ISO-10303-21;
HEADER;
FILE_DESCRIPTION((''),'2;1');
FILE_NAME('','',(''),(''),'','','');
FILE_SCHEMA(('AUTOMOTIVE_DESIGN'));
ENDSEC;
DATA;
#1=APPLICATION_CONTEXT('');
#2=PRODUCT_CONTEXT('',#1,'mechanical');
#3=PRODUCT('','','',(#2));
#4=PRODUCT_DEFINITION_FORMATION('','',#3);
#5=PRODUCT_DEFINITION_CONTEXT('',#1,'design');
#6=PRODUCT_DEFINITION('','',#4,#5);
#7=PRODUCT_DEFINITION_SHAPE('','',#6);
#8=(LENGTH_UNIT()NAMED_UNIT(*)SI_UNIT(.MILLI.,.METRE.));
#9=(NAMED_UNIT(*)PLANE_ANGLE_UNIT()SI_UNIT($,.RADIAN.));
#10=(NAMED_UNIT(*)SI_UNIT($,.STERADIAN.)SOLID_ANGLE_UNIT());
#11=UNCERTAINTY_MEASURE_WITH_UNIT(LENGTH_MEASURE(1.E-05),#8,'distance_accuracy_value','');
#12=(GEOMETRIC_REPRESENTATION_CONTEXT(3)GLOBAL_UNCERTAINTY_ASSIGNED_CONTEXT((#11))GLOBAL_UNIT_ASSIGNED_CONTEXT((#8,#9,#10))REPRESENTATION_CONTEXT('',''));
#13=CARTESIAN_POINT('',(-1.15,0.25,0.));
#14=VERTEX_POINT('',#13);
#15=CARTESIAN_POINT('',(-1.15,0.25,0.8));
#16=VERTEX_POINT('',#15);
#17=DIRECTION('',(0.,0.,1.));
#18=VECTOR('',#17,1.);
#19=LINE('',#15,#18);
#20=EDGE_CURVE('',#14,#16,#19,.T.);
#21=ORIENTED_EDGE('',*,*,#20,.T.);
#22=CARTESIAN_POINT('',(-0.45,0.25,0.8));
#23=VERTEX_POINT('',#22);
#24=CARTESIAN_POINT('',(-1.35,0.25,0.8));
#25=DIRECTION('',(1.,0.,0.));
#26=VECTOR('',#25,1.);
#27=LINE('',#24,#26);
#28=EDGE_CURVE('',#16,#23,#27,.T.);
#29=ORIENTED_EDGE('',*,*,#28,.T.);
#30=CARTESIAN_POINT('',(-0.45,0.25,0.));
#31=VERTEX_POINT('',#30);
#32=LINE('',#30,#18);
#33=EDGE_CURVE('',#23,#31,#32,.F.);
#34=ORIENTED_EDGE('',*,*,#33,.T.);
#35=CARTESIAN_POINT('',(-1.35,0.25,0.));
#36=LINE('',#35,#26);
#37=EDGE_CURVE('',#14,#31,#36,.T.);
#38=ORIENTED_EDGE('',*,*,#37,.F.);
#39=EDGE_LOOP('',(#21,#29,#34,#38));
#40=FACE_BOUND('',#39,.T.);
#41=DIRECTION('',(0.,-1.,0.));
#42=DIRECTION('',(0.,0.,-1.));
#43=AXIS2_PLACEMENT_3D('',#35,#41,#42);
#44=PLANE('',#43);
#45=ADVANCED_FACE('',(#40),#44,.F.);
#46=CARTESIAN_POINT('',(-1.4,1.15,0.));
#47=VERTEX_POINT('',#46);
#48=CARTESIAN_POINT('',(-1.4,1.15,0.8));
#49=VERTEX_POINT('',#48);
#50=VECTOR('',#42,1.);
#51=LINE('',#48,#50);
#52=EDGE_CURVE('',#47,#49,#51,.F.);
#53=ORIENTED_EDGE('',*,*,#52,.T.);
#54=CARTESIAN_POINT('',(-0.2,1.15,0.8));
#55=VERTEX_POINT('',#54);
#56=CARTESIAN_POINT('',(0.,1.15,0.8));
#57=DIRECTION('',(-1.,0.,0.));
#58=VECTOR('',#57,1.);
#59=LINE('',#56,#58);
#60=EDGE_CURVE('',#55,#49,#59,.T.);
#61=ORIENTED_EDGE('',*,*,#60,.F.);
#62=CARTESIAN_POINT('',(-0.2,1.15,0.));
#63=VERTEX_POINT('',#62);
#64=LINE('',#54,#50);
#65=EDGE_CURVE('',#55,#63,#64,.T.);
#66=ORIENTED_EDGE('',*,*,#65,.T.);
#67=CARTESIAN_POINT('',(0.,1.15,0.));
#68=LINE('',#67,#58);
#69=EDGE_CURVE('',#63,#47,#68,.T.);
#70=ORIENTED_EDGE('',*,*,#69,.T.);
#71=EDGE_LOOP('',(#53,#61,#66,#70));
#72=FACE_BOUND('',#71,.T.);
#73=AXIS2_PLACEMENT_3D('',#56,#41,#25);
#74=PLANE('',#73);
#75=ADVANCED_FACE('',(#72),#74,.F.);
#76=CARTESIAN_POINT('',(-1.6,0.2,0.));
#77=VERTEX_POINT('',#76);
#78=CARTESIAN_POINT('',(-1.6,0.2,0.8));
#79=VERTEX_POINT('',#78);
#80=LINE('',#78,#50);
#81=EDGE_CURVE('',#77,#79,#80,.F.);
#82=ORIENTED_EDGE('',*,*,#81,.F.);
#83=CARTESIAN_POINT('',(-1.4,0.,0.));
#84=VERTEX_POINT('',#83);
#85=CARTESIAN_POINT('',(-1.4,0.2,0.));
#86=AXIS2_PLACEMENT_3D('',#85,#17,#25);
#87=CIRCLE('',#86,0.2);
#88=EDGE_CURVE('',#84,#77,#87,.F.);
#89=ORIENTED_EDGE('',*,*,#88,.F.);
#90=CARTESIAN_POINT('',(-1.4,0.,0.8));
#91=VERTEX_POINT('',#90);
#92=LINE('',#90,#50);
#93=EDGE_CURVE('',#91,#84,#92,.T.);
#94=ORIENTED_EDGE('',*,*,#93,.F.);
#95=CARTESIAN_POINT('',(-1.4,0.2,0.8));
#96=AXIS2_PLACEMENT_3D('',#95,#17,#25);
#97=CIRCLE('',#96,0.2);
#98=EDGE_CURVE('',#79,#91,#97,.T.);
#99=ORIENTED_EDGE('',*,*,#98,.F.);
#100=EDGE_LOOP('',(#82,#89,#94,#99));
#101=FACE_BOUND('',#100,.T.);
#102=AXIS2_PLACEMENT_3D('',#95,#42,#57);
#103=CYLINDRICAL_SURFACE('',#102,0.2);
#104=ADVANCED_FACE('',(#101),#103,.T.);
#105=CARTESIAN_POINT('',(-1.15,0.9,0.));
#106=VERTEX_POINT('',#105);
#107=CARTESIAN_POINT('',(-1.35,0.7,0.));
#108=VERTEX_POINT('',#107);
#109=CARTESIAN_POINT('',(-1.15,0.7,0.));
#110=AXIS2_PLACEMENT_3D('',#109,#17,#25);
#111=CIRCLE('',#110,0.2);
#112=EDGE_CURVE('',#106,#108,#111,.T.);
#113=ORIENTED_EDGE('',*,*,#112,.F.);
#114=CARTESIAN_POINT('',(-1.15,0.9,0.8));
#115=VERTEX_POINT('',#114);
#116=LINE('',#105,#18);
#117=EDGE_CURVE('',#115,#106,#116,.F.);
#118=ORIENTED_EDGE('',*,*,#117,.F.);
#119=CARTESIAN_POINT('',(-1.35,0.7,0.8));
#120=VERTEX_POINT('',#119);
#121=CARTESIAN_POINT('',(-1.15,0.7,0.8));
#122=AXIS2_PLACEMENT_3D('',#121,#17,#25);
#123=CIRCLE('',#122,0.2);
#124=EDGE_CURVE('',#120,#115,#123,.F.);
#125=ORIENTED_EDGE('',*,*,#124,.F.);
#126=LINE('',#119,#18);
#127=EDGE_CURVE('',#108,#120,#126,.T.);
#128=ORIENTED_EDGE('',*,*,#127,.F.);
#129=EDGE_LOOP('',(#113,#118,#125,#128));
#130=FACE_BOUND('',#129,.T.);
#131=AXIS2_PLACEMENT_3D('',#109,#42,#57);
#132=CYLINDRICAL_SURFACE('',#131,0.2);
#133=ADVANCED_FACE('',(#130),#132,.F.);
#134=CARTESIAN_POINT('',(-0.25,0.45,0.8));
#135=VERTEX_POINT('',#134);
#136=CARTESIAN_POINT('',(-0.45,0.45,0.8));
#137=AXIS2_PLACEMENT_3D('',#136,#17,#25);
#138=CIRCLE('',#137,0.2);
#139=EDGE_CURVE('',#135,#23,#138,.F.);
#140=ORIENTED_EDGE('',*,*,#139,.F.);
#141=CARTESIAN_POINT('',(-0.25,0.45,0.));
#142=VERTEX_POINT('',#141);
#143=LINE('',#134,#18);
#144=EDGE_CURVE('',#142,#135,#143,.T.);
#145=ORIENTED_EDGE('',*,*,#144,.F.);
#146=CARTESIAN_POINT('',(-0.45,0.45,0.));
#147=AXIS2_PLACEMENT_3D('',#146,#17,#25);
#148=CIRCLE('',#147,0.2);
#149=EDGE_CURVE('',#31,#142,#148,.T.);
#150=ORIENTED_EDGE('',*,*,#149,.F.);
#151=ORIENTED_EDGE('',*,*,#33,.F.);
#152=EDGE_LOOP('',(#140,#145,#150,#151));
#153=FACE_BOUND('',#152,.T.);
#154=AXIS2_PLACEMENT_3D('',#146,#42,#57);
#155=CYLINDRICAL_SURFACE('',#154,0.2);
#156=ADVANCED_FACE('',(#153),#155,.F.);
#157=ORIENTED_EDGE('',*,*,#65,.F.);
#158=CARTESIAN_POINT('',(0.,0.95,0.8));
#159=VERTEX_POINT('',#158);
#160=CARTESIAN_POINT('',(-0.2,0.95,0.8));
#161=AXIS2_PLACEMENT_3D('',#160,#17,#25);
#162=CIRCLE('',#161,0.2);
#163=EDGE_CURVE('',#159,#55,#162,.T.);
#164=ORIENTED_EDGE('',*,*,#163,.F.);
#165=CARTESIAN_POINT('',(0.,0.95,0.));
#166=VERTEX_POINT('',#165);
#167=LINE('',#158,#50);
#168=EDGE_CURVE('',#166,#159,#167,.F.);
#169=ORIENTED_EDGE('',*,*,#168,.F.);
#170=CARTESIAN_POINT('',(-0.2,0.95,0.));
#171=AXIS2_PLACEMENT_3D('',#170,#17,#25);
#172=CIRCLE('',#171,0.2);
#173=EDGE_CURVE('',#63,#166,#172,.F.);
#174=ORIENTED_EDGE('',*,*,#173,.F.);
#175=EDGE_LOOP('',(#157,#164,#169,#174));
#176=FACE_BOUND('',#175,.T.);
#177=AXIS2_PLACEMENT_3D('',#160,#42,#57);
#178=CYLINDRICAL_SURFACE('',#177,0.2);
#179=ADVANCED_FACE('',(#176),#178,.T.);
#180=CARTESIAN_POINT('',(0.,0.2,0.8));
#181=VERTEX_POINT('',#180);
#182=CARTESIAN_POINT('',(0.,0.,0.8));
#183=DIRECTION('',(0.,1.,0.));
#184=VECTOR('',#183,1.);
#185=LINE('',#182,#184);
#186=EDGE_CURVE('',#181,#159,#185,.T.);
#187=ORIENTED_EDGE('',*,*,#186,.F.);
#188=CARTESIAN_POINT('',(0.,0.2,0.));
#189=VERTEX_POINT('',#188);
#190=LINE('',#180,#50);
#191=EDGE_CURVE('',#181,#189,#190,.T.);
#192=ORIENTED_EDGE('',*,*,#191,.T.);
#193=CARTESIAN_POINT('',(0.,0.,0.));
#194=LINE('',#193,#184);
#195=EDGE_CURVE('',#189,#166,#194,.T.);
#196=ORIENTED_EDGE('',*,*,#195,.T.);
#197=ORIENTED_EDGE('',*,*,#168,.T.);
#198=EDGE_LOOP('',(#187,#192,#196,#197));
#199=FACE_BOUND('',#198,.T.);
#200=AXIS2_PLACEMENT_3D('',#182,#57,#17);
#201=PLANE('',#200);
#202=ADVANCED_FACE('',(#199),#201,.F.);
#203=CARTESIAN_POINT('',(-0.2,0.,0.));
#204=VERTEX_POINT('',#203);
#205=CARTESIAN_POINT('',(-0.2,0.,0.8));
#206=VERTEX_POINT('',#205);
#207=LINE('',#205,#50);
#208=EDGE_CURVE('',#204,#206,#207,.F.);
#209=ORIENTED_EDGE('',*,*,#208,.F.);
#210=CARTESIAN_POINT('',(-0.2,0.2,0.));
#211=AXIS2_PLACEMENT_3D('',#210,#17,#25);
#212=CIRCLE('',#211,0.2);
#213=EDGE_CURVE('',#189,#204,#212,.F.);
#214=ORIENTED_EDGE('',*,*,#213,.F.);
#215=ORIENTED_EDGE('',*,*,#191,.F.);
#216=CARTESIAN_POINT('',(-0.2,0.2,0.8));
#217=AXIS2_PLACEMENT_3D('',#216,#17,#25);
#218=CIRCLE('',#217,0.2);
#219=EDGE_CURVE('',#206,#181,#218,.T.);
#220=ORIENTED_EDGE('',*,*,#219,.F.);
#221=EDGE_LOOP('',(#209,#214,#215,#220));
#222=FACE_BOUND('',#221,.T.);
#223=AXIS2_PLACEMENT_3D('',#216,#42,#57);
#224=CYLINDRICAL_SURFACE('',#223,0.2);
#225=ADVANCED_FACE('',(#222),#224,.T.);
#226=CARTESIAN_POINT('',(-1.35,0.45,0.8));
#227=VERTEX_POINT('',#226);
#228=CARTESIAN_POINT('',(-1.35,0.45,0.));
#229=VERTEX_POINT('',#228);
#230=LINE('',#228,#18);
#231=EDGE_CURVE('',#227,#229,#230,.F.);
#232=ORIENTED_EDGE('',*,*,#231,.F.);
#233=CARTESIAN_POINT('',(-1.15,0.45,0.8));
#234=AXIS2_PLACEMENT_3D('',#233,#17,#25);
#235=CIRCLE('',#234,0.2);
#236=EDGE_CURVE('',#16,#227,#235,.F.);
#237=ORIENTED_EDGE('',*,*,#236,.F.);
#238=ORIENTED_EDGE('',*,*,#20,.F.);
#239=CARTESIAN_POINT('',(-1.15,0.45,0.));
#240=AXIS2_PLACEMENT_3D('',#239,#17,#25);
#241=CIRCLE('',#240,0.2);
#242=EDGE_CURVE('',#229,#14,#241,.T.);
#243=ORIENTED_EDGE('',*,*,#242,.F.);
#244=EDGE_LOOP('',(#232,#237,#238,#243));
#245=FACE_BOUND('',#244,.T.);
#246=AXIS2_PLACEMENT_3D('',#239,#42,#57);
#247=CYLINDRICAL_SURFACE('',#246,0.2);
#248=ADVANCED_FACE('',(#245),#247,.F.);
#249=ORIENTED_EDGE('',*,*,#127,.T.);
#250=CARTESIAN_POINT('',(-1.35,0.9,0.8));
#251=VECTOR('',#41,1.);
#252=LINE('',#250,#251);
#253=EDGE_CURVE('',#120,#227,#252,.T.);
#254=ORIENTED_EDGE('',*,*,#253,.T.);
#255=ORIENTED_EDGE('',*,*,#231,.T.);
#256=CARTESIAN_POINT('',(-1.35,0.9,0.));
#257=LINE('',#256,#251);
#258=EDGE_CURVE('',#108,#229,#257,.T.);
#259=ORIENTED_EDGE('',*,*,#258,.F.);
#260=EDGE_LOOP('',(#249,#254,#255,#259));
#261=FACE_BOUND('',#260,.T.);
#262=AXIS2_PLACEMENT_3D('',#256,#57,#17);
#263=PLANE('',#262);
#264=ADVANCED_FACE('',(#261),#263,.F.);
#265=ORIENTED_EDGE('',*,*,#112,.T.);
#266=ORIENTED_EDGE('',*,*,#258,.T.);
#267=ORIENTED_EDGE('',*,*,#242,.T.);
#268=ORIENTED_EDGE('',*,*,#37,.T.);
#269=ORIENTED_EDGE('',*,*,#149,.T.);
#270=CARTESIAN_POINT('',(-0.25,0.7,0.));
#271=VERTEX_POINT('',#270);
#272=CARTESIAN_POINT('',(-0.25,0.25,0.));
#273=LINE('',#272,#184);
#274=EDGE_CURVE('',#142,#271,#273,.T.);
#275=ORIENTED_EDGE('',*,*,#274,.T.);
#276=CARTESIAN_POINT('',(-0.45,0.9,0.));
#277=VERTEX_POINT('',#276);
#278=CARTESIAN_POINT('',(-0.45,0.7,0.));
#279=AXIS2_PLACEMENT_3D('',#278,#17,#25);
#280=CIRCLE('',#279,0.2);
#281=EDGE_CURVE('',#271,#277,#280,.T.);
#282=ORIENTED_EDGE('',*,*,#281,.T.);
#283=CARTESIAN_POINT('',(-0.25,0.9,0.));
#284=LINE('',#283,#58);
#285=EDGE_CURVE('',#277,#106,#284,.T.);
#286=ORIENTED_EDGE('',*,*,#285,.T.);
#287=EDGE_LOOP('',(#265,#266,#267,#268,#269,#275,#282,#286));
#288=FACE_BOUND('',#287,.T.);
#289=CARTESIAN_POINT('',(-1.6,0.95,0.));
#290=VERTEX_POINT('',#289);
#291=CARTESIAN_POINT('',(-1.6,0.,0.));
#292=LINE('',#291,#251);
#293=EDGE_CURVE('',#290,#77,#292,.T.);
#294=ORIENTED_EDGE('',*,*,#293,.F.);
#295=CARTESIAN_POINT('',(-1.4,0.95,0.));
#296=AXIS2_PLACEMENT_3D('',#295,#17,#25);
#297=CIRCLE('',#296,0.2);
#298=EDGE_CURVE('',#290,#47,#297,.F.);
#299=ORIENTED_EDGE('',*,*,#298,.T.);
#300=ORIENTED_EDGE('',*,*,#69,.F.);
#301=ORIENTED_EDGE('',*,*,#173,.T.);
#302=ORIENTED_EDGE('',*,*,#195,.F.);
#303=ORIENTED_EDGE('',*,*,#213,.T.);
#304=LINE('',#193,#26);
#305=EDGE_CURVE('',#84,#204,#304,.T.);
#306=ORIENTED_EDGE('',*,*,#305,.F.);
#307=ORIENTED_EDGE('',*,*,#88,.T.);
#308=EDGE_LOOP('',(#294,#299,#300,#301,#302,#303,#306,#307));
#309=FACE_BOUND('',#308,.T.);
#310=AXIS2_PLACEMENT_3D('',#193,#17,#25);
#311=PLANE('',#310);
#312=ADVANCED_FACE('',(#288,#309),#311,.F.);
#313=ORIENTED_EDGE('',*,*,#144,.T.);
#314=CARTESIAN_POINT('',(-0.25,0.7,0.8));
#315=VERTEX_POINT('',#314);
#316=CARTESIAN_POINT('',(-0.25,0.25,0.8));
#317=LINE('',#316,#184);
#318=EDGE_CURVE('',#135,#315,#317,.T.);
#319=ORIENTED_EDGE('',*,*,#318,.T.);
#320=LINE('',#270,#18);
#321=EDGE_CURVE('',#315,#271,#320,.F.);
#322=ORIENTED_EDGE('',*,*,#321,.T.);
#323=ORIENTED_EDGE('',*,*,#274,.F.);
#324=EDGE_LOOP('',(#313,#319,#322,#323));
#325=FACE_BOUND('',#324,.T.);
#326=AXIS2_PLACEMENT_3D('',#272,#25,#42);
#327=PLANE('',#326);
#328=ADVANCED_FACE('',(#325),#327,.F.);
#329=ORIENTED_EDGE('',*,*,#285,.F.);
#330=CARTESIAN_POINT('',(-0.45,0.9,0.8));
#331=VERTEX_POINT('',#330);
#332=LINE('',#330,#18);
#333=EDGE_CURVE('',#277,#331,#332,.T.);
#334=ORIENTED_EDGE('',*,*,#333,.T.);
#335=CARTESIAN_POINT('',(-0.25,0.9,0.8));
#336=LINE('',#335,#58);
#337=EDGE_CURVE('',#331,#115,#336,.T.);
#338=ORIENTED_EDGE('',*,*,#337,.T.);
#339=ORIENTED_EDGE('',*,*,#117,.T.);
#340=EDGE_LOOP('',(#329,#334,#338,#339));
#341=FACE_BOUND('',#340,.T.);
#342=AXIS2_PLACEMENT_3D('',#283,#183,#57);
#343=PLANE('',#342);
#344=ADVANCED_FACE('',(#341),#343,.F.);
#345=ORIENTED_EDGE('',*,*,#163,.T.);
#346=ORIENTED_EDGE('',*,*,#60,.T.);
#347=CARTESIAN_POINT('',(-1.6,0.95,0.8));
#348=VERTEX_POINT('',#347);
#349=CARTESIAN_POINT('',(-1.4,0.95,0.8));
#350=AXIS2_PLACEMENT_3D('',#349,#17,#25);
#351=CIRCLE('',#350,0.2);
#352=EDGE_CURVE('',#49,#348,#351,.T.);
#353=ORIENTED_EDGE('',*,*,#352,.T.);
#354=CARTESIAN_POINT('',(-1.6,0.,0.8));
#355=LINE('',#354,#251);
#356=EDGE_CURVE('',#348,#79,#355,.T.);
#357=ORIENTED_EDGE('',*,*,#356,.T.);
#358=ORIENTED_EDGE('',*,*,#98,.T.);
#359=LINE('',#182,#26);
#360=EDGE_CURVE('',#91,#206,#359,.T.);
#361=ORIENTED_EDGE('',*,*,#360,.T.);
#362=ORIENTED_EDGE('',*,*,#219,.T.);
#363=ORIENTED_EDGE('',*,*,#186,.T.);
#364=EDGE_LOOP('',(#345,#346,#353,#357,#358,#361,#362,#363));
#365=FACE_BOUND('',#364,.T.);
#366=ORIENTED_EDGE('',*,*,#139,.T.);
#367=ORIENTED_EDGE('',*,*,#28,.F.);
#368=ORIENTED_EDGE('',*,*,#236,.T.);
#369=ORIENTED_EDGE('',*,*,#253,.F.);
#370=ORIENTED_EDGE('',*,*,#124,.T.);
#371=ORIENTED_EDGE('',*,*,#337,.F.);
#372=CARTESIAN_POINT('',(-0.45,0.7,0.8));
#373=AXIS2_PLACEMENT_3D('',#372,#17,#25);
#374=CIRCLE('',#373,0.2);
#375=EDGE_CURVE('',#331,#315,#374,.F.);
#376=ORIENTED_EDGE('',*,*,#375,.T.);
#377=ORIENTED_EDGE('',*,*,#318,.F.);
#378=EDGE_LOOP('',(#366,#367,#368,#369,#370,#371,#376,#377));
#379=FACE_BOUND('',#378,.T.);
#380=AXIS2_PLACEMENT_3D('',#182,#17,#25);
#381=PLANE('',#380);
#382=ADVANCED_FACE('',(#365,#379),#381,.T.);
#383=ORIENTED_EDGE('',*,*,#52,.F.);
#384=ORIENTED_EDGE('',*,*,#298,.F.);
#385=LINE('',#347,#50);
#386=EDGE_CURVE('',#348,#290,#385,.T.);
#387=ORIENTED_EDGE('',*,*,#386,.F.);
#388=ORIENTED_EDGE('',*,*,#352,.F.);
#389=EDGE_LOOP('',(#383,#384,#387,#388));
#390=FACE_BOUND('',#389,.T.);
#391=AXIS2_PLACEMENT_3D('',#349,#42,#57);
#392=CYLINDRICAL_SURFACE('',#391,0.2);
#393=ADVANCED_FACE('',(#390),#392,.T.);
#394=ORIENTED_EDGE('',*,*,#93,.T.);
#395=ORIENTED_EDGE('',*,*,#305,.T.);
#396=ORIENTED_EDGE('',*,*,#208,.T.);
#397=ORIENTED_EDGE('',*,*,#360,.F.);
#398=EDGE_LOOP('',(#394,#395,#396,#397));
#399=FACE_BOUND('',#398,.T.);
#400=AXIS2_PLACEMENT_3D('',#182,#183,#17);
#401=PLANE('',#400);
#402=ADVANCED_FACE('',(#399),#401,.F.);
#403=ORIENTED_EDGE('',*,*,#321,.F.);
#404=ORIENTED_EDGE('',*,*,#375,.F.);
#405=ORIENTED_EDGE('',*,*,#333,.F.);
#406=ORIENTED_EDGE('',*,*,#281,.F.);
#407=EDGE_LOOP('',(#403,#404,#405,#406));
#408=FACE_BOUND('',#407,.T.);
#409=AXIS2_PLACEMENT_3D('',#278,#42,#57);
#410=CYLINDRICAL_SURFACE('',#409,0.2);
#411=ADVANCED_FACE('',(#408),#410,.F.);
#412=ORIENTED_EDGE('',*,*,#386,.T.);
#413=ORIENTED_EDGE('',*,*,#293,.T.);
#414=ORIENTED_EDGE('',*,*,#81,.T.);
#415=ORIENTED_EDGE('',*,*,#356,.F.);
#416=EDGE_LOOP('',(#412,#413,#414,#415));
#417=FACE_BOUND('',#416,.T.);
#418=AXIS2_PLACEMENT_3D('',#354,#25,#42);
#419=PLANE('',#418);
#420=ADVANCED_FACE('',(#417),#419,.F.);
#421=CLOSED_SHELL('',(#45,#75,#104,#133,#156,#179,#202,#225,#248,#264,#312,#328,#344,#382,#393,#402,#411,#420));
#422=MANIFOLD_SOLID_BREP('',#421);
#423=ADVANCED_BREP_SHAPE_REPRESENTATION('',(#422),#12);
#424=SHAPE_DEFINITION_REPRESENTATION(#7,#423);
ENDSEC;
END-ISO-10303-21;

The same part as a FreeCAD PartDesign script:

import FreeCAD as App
import Part
import Sketcher

V = App.Vector
Q = App.Units.Quantity


def edges_at(feature, points):
    """Names of the edges that pass closest to the given points."""
    edges = feature.Shape.Edges
    near = lambda p: min(range(len(edges)), key=lambda i: edges[i].distToShape(Part.Vertex(*p))[0])
    return sorted({f"Edge{near(p) + 1}" for p in points})


def add_polygon(sketch, points):
    """Adds a closed chain of lines whose ends are joined by coincident constraints."""
    first, n = sketch.GeometryCount, len(points)
    for a, b in zip(points, points[1:] + points[:1]):
        sketch.addGeometry(Part.LineSegment(App.Vector(*a, 0), App.Vector(*b, 0)), False)
    for i in range(n):
        sketch.addConstraint(Sketcher.Constraint("Coincident", first + i, 2, first + (i + 1) % n, 1))

doc = App.newDocument("Part")
body = doc.addObject("PartDesign::Body", "Body")

sketch1 = body.newObject("Sketcher::SketchObject", "Sketch")
sketch1.AttachmentSupport = (doc.getObject("XY_Plane"), [""])
sketch1.MapMode = "FlatFace"
add_polygon(sketch1, [(-1.6, 1.15), (-1.6, 0), (0, 0), (0, 1.15)])
sketch1.addConstraint(Sketcher.Constraint("Vertical", 0))
sketch1.addConstraint(Sketcher.Constraint("Horizontal", 1))
sketch1.addConstraint(Sketcher.Constraint("Vertical", 2))
sketch1.addConstraint(Sketcher.Constraint("Horizontal", 3))
sketch1.addConstraint(Sketcher.Constraint("Coincident", 1, 2, -1, 1))
sketch1.addConstraint(Sketcher.Constraint("DistanceX", 1, 1, 1, 2, Q("1.6 mm")))
sketch1.addConstraint(Sketcher.Constraint("DistanceY", 0, 2, 0, 1, Q("1.15 mm")))
pad1 = body.newObject("PartDesign::Pad", "Pad")
pad1.Profile = sketch1
pad1.Length = 0.8
doc.recompute()

fillet = body.newObject("PartDesign::Fillet", "Fillet")
fillet.Base = (pad1, edges_at(pad1, [
    (0, 0, 0.4),
    (-1.6, 0, 0.4),
    (-1.6, 1.15, 0.4),
    (0, 1.15, 0.4),
]))
fillet.Radius = 0.2

sketch2 = body.newObject("Sketcher::SketchObject", "Sketch001")
sketch2.AttachmentSupport = (doc.getObject("XY_Plane"), [""])
sketch2.MapMode = "FlatFace"
sketch2.AttachmentOffset = App.Placement(V(0, 0, 0.8), App.Rotation())
add_polygon(sketch2, [(-1.35, 0.9), (-1.35, 0.25), (-0.25, 0.25), (-0.25, 0.9)])
sketch2.addConstraint(Sketcher.Constraint("Vertical", 0))
sketch2.addConstraint(Sketcher.Constraint("Horizontal", 1))
sketch2.addConstraint(Sketcher.Constraint("Vertical", 2))
sketch2.addConstraint(Sketcher.Constraint("Horizontal", 3))
sketch2.addConstraint(Sketcher.Constraint("DistanceX", 1, 1, 1, 2, Q("1.1 mm")))
sketch2.addConstraint(Sketcher.Constraint("DistanceY", 0, 2, 0, 1, Q("0.65 mm")))
sketch2.addConstraint(Sketcher.Constraint("DistanceY", -1, 1, 2, 2, Q("0.9 mm")))
sketch2.addConstraint(Sketcher.Constraint("DistanceX", 0, 2, -1, 1, Q("1.35 mm")))
pocket1 = body.newObject("PartDesign::Pocket", "Pocket")
pocket1.Profile = sketch2
pocket1.Length = 0.8
doc.recompute()

fillet2 = body.newObject("PartDesign::Fillet", "Fillet001")
fillet2.Base = (pocket1, edges_at(pocket1, [
    (-1.35, 0.25, 0.4),
    (-1.35, 0.9, 0.4),
    (-0.25, 0.9, 0.4),
    (-0.25, 0.25, 0.4),
]))
fillet2.Radius = 0.2

doc.recompute()
